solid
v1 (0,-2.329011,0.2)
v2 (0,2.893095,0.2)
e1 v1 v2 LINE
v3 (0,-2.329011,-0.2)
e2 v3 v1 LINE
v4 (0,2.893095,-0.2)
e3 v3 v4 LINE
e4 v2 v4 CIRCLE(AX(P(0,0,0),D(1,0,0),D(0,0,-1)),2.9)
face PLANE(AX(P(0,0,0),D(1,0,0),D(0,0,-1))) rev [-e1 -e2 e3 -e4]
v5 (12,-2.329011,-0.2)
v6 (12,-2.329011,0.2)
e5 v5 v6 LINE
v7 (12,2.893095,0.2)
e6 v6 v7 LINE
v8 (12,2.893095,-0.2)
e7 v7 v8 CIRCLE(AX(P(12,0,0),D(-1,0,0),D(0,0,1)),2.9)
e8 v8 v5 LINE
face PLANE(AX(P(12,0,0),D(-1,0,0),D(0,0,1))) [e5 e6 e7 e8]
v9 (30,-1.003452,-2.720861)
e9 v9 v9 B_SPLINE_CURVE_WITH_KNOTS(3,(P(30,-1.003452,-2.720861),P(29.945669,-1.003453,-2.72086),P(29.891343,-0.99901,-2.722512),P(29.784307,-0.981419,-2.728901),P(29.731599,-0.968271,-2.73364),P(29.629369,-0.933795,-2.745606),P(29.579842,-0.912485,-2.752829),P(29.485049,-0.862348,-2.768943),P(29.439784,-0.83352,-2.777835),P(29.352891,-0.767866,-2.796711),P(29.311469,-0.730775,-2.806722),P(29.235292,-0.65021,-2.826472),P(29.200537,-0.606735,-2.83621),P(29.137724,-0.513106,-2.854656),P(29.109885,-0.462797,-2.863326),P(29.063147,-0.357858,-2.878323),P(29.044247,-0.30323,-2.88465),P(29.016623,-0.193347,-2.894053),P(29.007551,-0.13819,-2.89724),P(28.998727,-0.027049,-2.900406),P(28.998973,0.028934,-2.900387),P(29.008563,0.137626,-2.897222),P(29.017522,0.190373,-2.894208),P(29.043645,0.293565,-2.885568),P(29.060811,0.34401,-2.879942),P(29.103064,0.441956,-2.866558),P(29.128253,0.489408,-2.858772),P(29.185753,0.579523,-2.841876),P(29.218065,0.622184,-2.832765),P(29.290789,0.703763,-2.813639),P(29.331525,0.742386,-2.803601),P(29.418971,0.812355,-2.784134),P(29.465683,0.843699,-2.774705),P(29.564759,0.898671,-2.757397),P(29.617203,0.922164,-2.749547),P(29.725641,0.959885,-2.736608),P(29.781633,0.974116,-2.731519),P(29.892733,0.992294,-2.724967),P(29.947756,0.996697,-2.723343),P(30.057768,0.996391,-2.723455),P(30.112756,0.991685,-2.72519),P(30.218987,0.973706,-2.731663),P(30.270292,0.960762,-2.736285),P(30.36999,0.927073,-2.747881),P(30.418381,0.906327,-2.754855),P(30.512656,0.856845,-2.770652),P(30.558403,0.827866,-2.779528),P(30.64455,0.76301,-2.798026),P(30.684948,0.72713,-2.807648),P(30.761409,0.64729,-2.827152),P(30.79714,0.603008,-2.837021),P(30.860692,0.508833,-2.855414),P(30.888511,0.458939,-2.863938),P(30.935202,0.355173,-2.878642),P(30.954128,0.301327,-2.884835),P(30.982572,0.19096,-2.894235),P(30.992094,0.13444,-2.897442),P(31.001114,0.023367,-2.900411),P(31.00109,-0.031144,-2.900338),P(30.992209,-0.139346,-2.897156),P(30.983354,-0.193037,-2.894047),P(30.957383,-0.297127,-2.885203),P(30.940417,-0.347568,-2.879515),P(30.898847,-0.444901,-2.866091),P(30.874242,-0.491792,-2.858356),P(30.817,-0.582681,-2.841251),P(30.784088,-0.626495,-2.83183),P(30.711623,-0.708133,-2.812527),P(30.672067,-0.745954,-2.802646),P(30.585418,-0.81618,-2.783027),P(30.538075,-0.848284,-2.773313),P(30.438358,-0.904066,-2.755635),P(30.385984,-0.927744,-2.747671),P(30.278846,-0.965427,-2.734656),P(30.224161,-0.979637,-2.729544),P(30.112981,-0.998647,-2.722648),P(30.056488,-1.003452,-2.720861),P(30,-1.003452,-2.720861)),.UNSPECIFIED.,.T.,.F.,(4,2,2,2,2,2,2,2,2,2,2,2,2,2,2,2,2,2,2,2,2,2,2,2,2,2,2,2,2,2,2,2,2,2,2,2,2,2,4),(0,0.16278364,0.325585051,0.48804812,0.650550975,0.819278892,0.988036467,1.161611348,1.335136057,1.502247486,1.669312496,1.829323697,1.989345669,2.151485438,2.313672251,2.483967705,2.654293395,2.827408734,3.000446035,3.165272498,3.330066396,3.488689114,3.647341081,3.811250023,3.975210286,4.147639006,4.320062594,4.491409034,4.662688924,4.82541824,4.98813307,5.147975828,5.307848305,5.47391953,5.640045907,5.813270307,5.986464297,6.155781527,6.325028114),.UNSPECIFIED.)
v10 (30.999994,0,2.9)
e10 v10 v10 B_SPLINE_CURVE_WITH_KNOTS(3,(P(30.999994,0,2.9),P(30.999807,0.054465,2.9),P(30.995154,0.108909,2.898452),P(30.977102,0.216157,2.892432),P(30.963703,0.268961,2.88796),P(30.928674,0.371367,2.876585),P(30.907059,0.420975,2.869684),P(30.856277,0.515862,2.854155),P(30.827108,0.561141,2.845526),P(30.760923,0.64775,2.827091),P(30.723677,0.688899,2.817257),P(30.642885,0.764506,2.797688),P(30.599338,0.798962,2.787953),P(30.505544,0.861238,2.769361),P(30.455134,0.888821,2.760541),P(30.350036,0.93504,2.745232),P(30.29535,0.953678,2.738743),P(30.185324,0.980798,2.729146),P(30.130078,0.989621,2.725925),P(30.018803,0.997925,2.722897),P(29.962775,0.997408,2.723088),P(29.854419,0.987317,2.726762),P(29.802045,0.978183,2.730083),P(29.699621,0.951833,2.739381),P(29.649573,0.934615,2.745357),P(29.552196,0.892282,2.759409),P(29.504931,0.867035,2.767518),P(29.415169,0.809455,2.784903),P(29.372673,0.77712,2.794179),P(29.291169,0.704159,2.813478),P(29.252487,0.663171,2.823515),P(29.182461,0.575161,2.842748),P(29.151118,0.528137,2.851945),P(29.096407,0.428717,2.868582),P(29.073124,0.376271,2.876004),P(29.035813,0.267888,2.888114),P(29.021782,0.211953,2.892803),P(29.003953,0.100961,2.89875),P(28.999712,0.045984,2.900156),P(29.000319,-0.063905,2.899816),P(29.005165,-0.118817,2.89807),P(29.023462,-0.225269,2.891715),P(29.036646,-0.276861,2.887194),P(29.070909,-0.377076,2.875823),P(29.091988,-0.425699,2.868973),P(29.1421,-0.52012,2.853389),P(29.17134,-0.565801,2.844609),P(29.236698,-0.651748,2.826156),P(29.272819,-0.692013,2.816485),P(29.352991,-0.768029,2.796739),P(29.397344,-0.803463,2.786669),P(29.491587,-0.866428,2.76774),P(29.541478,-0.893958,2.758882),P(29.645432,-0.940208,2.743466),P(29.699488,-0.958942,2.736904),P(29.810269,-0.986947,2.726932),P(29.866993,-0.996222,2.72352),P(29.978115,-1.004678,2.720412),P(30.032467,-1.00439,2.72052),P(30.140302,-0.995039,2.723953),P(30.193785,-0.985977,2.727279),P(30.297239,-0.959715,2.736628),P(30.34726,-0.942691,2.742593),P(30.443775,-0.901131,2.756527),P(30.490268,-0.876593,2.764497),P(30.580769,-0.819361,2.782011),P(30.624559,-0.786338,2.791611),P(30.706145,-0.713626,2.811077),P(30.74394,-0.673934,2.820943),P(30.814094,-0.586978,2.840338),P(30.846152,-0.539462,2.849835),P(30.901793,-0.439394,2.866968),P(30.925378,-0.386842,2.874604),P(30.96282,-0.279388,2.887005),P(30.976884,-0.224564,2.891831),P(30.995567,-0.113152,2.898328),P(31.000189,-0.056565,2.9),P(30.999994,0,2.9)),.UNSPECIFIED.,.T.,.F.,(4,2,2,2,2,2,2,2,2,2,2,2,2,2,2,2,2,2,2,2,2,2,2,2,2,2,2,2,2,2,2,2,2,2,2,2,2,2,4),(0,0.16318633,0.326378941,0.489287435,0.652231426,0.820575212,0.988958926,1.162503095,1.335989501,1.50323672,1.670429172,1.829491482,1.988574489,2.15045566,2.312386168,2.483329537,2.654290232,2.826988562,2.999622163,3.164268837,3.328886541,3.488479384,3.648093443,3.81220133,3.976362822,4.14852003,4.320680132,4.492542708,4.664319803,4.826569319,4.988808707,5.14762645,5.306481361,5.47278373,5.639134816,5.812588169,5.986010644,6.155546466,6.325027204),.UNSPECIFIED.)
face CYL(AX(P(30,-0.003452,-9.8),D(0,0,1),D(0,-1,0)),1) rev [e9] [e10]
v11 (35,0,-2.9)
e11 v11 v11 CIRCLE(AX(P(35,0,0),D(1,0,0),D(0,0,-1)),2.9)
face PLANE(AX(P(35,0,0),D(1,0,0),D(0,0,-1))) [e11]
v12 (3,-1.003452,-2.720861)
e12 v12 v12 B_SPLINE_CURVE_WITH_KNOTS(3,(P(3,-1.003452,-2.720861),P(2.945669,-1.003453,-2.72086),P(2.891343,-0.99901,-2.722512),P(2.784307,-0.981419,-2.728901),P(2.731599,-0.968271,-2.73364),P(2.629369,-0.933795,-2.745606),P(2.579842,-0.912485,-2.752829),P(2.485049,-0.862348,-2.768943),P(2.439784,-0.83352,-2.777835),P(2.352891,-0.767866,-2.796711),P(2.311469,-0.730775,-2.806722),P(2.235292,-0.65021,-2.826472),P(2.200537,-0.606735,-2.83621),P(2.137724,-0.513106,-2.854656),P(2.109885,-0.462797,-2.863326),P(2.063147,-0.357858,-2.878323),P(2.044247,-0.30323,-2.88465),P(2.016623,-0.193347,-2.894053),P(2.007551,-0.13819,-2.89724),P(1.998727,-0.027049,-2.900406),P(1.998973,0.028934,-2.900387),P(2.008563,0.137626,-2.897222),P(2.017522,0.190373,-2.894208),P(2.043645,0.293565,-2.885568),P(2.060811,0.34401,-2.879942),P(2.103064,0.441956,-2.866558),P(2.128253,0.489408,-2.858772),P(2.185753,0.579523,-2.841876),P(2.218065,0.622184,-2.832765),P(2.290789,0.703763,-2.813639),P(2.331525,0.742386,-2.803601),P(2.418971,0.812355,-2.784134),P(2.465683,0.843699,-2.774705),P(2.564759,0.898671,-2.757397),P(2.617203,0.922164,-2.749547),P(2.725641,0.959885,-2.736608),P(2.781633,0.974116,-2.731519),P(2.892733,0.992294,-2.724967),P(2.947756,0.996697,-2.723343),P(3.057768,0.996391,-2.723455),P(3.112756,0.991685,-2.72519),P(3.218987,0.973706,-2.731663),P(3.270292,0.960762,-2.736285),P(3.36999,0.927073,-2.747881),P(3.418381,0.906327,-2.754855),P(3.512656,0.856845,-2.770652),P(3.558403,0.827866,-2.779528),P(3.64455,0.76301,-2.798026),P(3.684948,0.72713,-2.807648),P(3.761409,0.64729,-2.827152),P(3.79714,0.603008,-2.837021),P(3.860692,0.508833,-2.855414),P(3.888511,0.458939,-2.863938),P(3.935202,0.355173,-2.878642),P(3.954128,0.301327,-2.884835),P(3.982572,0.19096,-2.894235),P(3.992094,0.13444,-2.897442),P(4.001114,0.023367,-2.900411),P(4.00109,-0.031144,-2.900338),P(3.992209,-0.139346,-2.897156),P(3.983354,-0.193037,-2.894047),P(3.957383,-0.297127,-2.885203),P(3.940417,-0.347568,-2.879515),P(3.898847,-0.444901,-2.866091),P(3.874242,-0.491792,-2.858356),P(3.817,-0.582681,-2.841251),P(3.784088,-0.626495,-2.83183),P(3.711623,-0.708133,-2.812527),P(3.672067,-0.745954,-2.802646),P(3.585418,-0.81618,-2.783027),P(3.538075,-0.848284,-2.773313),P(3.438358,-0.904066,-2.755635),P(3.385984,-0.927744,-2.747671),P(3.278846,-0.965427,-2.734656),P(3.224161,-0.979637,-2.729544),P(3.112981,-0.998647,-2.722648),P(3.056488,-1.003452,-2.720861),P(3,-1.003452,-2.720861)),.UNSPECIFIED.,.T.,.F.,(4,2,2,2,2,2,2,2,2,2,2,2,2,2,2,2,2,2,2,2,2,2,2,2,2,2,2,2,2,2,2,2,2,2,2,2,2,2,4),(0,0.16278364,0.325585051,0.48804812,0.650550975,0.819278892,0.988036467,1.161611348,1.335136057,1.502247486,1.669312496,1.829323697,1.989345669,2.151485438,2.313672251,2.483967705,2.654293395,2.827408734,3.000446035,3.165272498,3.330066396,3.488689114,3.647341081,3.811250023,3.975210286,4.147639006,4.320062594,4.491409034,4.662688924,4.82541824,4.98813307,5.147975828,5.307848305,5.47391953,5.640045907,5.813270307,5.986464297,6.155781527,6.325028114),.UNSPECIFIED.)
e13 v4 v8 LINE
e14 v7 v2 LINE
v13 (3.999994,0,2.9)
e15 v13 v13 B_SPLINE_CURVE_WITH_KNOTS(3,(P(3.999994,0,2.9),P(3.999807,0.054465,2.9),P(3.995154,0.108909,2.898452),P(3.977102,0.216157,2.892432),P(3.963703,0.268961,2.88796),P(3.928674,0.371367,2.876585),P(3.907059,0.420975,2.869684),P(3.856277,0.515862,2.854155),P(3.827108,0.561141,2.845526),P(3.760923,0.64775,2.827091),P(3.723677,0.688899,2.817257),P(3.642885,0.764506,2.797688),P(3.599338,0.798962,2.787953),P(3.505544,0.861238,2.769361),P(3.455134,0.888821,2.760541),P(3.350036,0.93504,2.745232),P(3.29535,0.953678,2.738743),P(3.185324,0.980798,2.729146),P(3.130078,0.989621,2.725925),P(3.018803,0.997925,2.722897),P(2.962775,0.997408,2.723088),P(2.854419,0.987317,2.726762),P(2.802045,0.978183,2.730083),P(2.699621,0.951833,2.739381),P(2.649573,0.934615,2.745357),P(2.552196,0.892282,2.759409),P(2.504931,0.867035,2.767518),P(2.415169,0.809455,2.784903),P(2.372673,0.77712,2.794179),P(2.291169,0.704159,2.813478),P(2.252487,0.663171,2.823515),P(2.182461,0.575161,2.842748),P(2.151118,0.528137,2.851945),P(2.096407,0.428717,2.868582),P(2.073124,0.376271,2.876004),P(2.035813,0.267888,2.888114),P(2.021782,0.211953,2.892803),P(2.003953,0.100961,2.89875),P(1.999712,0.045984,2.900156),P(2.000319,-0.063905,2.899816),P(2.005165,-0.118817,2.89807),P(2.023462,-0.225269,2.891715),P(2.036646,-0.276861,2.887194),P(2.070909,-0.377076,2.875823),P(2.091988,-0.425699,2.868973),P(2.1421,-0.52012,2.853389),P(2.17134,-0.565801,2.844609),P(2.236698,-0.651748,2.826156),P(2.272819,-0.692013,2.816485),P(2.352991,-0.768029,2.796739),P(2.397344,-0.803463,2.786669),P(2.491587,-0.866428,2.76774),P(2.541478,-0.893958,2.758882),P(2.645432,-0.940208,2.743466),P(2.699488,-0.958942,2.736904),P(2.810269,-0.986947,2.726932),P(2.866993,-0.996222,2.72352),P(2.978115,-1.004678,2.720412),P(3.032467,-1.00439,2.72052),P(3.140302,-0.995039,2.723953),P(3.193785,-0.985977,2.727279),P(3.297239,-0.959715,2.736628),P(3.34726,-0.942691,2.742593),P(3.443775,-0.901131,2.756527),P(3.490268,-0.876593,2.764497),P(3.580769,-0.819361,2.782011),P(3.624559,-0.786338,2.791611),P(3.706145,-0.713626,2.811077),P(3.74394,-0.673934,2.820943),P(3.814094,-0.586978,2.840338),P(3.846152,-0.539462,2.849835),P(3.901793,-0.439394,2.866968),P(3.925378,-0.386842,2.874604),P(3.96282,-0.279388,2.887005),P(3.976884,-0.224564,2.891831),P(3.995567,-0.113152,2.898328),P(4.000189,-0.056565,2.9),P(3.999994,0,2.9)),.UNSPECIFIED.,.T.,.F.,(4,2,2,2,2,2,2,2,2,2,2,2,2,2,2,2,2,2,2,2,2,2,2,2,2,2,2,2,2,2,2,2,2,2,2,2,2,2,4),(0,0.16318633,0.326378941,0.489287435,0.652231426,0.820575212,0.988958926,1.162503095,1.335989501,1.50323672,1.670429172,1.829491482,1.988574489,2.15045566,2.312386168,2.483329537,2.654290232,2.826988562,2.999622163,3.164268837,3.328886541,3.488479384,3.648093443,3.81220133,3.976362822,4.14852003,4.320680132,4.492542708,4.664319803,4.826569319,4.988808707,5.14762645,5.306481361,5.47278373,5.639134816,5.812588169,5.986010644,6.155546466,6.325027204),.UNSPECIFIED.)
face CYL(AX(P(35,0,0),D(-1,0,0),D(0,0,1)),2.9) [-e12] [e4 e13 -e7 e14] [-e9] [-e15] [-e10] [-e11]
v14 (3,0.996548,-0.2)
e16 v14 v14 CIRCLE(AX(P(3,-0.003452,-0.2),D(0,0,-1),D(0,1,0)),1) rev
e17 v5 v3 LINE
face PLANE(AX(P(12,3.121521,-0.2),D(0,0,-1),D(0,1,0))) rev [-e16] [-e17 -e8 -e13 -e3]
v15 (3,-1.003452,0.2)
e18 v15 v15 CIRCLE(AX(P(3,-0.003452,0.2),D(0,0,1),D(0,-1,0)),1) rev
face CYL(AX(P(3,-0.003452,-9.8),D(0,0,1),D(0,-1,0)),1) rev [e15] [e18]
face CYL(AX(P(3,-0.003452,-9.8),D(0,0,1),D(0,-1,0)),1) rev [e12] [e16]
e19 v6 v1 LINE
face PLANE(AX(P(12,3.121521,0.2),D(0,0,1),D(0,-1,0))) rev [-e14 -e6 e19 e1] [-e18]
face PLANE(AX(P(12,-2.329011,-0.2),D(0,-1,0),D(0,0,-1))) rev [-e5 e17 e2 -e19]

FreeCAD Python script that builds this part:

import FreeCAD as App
import Part
import Sketcher

V = App.Vector
Q = App.Units.Quantity

doc = App.newDocument("Part")
body = doc.addObject("PartDesign::Body", "Body")

# Sketch on YZ plane
sketch1 = body.newObject("Sketcher::SketchObject", "Sketch")
sketch1.AttachmentSupport = (doc.getObject("YZ_Plane"), [""])
sketch1.MapMode = "FlatFace"
sketch1.addGeometry(Part.Circle(V(0, 0, 0), V(0, 0, 1), 2.9), False)
sketch1.addConstraint([
    Sketcher.Constraint("Coincident", 0, 3, -1, 1),
    Sketcher.Constraint("Diameter", 0, Q("5.8 mm")),
])
pad1 = body.newObject("PartDesign::Pad", "Pad")
pad1.Profile = sketch1
pad1.Length = 35

# Sketch on YZ plane
sketch2 = body.newObject("Sketcher::SketchObject", "Sketch001")
sketch2.AttachmentSupport = (doc.getObject("YZ_Plane"), [""])
sketch2.MapMode = "FlatFace"
sketch2.addGeometry([
    Part.LineSegment(V(3.12, -0.2, 0), V(-2.33, -0.2, 0)),
    Part.LineSegment(V(-2.33, -0.2, 0), V(-2.33, 0.2, 0)),
    Part.LineSegment(V(-2.33, 0.2, 0), V(3.12, 0.2, 0)),
    Part.LineSegment(V(3.12, 0.2, 0), V(3.12, -0.2, 0)),
], False)
sketch2.addConstraint([
    Sketcher.Constraint("Coincident", 0, 2, 1, 1),
    Sketcher.Constraint("Coincident", 1, 2, 2, 1),
    Sketcher.Constraint("Coincident", 2, 2, 3, 1),
    Sketcher.Constraint("Coincident", 3, 2, 0, 1),
    Sketcher.Constraint("Horizontal", 0),
    Sketcher.Constraint("Vertical", 1),
    Sketcher.Constraint("Horizontal", 2),
    Sketcher.Constraint("Vertical", 3),
    Sketcher.Constraint("DistanceY", 1, 1, 1, 2, Q("0.4 mm")),
    Sketcher.Constraint("DistanceY", 0, 2, -1, 1, Q("0.2 mm")),
    Sketcher.Constraint("DistanceX", 0, 2, 0, 1, Q("5.450532 mm")),
    Sketcher.Constraint("DistanceX", 0, 2, -1, 1, Q("2.329011 mm")),
])
pocket1 = body.newObject("PartDesign::Pocket", "Pocket")
pocket1.Profile = sketch2
pocket1.Length = 12
pocket1.Reversed = True

# Sketch on XY plane
sketch3 = body.newObject("Sketcher::SketchObject", "Sketch002")
sketch3.AttachmentSupport = (doc.getObject("XY_Plane"), [""])
sketch3.MapMode = "FlatFace"
sketch3.AttachmentOffset = App.Placement(V(0, 0, 0.2), App.Rotation())
sketch3.addGeometry([
    Part.Circle(V(3, 0, 0), V(0, 0, 1), 1),
    Part.Circle(V(30, 0, 0), V(0, 0, 1), 1),
], False)
sketch3.addConstraint([
    Sketcher.Constraint("Equal", 0, 1),
    Sketcher.Constraint("Horizontal", 0, 3, 1, 3),
    Sketcher.Constraint("Diameter", 0, Q("2 mm")),
    Sketcher.Constraint("DistanceX", -1, 1, 0, 3, Q("3 mm")),
    Sketcher.Constraint("DistanceX", -1, 1, 1, 3, Q("30 mm")),
    Sketcher.Constraint("DistanceY", 0, 3, -1, 1, Q("0.003452 mm")),
])
pocket2 = body.newObject("PartDesign::Pocket", "Pocket001")
pocket2.Profile = sketch3
pocket2.Type = "ThroughAll"
pocket2.Midplane = True

doc.recompute()
